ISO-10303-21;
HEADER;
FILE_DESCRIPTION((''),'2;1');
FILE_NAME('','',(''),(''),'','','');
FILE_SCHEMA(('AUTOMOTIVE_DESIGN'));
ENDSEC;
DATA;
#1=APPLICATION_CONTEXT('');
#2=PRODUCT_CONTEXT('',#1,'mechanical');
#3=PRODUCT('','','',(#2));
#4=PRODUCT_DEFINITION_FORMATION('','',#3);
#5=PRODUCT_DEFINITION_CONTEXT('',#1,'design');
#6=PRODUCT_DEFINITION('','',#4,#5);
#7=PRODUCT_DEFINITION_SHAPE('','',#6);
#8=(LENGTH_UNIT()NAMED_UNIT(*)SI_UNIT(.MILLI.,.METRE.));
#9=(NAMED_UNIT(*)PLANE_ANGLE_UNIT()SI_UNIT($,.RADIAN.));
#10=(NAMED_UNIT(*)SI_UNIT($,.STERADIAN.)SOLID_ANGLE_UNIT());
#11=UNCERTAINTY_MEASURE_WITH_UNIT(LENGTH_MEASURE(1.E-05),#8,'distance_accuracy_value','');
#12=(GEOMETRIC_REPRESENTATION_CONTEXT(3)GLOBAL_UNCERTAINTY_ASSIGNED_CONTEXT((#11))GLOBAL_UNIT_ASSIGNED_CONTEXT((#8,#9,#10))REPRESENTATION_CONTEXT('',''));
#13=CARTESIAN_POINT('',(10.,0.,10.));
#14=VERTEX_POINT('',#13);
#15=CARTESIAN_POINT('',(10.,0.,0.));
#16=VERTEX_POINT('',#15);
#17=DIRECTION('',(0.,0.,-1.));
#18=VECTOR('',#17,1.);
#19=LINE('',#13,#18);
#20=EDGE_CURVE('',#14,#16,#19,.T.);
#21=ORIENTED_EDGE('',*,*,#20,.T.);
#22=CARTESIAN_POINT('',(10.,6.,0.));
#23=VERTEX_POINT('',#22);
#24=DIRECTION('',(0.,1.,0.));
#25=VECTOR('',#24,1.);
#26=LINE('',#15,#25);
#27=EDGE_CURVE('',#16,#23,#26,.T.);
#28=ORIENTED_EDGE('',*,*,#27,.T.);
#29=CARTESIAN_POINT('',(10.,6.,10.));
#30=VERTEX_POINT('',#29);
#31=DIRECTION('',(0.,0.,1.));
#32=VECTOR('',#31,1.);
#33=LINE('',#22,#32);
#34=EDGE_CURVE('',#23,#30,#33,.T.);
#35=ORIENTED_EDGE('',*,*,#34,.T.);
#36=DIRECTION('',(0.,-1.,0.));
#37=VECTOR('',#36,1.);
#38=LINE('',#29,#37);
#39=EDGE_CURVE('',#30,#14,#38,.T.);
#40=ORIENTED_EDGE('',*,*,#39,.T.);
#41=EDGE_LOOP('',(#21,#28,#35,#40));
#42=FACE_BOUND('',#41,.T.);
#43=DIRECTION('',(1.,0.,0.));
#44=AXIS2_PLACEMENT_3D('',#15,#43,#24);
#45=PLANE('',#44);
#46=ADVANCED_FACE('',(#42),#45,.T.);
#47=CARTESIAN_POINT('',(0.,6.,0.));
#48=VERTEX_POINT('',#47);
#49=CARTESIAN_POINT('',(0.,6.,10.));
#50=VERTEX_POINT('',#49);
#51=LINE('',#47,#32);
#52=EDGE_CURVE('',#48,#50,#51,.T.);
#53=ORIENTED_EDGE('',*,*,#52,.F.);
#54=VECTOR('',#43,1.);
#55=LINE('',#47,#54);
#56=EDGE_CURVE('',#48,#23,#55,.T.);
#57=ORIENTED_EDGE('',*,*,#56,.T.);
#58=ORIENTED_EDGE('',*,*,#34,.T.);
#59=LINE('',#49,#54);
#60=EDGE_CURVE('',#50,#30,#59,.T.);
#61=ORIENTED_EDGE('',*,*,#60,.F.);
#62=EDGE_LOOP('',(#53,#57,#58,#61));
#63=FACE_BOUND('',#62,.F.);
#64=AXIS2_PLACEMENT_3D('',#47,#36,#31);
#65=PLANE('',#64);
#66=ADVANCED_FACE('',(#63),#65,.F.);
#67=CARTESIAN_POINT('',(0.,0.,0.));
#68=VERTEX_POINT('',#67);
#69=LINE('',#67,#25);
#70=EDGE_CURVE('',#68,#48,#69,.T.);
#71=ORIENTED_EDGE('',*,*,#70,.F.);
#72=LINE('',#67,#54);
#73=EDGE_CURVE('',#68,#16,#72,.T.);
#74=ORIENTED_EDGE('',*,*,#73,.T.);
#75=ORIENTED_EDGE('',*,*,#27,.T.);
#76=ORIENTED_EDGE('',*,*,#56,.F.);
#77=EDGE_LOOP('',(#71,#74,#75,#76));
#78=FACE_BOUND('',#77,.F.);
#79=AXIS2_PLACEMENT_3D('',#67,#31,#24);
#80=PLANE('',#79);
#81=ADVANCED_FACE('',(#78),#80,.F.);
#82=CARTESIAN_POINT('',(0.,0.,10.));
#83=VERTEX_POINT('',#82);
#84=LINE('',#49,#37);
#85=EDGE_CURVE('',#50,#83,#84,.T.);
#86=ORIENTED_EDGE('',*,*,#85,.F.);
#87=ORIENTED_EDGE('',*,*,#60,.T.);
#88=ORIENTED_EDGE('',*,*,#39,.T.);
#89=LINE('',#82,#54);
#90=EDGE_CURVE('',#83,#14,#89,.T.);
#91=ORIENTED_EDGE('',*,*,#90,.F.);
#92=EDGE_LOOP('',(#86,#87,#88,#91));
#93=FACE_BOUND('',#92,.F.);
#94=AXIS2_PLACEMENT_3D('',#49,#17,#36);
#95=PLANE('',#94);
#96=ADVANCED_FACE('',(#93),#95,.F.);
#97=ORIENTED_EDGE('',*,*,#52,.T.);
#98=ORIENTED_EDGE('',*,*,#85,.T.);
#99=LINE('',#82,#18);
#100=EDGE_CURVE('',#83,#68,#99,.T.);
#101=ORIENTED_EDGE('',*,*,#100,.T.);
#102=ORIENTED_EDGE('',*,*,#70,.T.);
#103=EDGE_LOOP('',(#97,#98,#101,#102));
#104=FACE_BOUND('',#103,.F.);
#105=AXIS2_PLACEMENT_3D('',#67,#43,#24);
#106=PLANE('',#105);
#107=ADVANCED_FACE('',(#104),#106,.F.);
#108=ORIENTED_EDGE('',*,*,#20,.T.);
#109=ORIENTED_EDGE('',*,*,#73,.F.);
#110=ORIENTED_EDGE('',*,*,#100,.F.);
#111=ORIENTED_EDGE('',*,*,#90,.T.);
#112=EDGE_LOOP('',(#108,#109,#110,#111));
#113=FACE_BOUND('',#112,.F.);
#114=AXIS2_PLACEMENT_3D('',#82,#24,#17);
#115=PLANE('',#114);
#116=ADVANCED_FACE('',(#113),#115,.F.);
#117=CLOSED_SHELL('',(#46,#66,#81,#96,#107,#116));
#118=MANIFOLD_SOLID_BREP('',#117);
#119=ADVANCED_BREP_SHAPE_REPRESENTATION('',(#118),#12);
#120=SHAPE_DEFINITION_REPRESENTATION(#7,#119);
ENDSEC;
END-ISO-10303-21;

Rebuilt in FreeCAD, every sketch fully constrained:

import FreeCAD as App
import Part
import Sketcher
from FreeCAD import Vector


def add_polygon(sketch, points):
    """Adds a closed chain of lines whose ends are joined by coincident constraints."""
    first, n = sketch.GeometryCount, len(points)
    for a, b in zip(points, points[1:] + points[:1]):
        sketch.addGeometry(Part.LineSegment(App.Vector(*a, 0), App.Vector(*b, 0)), False)
    for i in range(n):
        sketch.addConstraint(Sketcher.Constraint("Coincident", first + i, 2, first + (i + 1) % n, 1))

doc = App.newDocument("Part")
body = doc.addObject("PartDesign::Body", "Body")

# Sketch on YZ plane
sketch1 = doc.addObject("Sketcher::SketchObject", "Sketch")
body.addObject(sketch1)
sketch1.AttachmentSupport = (doc.YZ_Plane, [""])
sketch1.MapMode = "FlatFace"
add_polygon(sketch1, [(0, 10), (0, 0), (6, 0), (6, 10)])  # lines 0-3
sketch1.addConstraint([
    Sketcher.Constraint("Vertical", 0),
    Sketcher.Constraint("Horizontal", 1),
    Sketcher.Constraint("Vertical", 2),
    Sketcher.Constraint("Horizontal", 3),
    Sketcher.Constraint("Coincident", 0, 2, -1, 1),
    Sketcher.Constraint("DistanceX", 1, 1, 1, 2, 6.0),
    Sketcher.Constraint("DistanceY", 0, 2, 0, 1, 10.0),
])
pad1 = doc.addObject("PartDesign::Pad", "Pad")
body.addObject(pad1)
pad1.Profile = sketch1
pad1.Length = 10

doc.recompute()
